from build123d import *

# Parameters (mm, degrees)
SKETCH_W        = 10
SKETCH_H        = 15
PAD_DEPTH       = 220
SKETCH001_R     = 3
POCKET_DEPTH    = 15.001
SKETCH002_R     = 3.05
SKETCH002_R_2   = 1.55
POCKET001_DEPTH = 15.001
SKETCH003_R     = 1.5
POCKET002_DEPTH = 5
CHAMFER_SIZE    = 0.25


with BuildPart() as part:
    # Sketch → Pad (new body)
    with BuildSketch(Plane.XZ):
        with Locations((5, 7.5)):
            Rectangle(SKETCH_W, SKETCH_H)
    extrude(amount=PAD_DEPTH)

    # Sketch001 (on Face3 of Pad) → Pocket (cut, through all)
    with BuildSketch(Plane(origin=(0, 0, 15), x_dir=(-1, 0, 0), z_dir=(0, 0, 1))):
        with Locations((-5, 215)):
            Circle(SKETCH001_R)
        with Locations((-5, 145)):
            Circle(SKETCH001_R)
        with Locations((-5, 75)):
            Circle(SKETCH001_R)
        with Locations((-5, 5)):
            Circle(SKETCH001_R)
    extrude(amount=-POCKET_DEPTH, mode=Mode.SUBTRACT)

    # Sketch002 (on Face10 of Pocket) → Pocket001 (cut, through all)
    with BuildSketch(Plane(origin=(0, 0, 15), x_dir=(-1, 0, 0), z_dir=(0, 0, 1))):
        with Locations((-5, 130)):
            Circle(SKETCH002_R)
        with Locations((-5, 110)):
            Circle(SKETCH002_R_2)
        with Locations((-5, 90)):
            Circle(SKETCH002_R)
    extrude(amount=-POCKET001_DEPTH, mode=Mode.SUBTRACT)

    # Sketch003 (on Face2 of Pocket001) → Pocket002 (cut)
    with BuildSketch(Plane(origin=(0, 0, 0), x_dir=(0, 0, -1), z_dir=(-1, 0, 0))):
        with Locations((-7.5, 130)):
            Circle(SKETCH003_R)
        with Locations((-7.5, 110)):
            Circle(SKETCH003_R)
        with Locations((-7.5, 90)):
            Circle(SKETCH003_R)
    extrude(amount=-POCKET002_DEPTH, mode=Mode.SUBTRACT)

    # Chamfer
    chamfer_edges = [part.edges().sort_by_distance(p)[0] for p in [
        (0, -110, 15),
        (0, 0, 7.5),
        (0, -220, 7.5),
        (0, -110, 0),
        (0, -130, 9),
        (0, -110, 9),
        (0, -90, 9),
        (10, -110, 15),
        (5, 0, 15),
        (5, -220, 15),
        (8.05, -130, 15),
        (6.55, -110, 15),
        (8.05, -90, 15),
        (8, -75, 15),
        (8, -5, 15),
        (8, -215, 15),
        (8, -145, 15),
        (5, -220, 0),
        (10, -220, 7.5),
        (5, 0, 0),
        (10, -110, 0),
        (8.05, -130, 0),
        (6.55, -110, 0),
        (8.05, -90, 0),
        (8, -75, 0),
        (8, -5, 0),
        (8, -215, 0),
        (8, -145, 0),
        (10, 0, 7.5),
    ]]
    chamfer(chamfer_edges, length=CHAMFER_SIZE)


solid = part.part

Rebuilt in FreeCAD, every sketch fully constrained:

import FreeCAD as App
import Part
import Sketcher


def edges_at(feature, points):
    """Names of the edges that pass closest to the given points."""
    edges = feature.Shape.Edges
    near = lambda p: min(range(len(edges)), key=lambda i: edges[i].distToShape(Part.Vertex(*p))[0])
    return sorted({f"Edge{near(p) + 1}" for p in points})

doc = App.newDocument("Part")
body = doc.addObject("PartDesign::Body", "Body")

sketch1 = body.newObject("Sketcher::SketchObject", "Sketch")
sketch1.AttachmentSupport = (doc.getObject("XZ_Plane"), [""])
sketch1.MapMode = "FlatFace"
sketch1.addGeometry([
    Part.LineSegment(App.Vector(0, 15, 0), App.Vector(0, 0, 0)),
    Part.LineSegment(App.Vector(0, 0, 0), App.Vector(10, 0, 0)),
    Part.LineSegment(App.Vector(10, 0, 0), App.Vector(10, 15, 0)),
    Part.LineSegment(App.Vector(10, 15, 0), App.Vector(0, 15, 0)),
], False)
sketch1.addConstraint([
    Sketcher.Constraint("Coincident", 0, 2, 1, 1),
    Sketcher.Constraint("Coincident", 1, 2, 2, 1),
    Sketcher.Constraint("Coincident", 2, 2, 3, 1),
    Sketcher.Constraint("Coincident", 3, 2, 0, 1),
    Sketcher.Constraint("Vertical", 0),
    Sketcher.Constraint("Horizontal", 1),
    Sketcher.Constraint("Vertical", 2),
    Sketcher.Constraint("Horizontal", 3),
    Sketcher.Constraint("Coincident", 0, 2, -1, 1),
    Sketcher.Constraint("DistanceX", 1, 1, 1, 2, 10.0),
    Sketcher.Constraint("DistanceY", 0, 2, 0, 1, 15.0),
])
pad1 = body.newObject("PartDesign::Pad", "Pad")
pad1.Profile = sketch1
pad1.Length = 220

sketch2 = body.newObject("Sketcher::SketchObject", "Sketch001")
sketch2.AttachmentSupport = (doc.getObject("XY_Plane"), [""])
sketch2.MapMode = "FlatFace"
sketch2.AttachmentOffset = App.Placement(App.Vector(0, 0, 15), App.Rotation())
sketch2.addGeometry([
    Part.Circle(App.Vector(5, -215, 0), App.Vector(0, 0, 1), 3),
    Part.Circle(App.Vector(5, -145, 0), App.Vector(0, 0, 1), 3),
    Part.Circle(App.Vector(5, -75, 0), App.Vector(0, 0, 1), 3),
    Part.Circle(App.Vector(5, -5, 0), App.Vector(0, 0, 1), 3),
], False)
sketch2.addConstraint([
    Sketcher.Constraint("Equal", 0, 1),
    Sketcher.Constraint("Equal", 1, 2),
    Sketcher.Constraint("Equal", 2, 3),
    Sketcher.Constraint("Vertical", 0, 3, 1, 3),
    Sketcher.Constraint("Vertical", 1, 3, 2, 3),
    Sketcher.Constraint("Vertical", 2, 3, 3, 3),
    Sketcher.Constraint("Diameter", 0, 6.0),
    Sketcher.Constraint("DistanceX", -1, 1, 0, 3, 5.0),
    Sketcher.Constraint("DistanceY", 0, 3, -1, 1, 215.0),
    Sketcher.Constraint("DistanceY", 1, 3, -1, 1, 145.0),
    Sketcher.Constraint("DistanceY", 2, 3, -1, 1, 75.0),
    Sketcher.Constraint("DistanceY", 3, 3, -1, 1, 5.0),
])
pocket1 = body.newObject("PartDesign::Pocket", "Pocket")
pocket1.Profile = sketch2
pocket1.Type = "ThroughAll"

sketch3 = body.newObject("Sketcher::SketchObject", "Sketch002")
sketch3.AttachmentSupport = (doc.getObject("XY_Plane"), [""])
sketch3.MapMode = "FlatFace"
sketch3.AttachmentOffset = App.Placement(App.Vector(0, 0, 15), App.Rotation())
sketch3.addGeometry([
    Part.Circle(App.Vector(5, -130, 0), App.Vector(0, 0, 1), 3),
    Part.Circle(App.Vector(5, -110, 0), App.Vector(0, 0, 1), 1.6),
    Part.Circle(App.Vector(5, -90, 0), App.Vector(0, 0, 1), 3),
], False)
sketch3.addConstraint([
    Sketcher.Constraint("Equal", 0, 2),
    Sketcher.Constraint("Vertical", 0, 3, 1, 3),
    Sketcher.Constraint("Vertical", 1, 3, 2, 3),
    Sketcher.Constraint("Diameter", 0, 6.1),
    Sketcher.Constraint("Diameter", 1, 3.1),
    Sketcher.Constraint("DistanceX", -1, 1, 0, 3, 5.0),
    Sketcher.Constraint("DistanceY", 0, 3, -1, 1, 130.0),
    Sketcher.Constraint("DistanceY", 1, 3, -1, 1, 110.0),
    Sketcher.Constraint("DistanceY", 2, 3, -1, 1, 90.0),
])
pocket2 = body.newObject("PartDesign::Pocket", "Pocket001")
pocket2.Profile = sketch3
pocket2.Type = "ThroughAll"

sketch4 = body.newObject("Sketcher::SketchObject", "Sketch003")
sketch4.AttachmentSupport = (doc.getObject("YZ_Plane"), [""])
sketch4.MapMode = "FlatFace"
sketch4.addGeometry([
    Part.Circle(App.Vector(-130, 7.5, 0), App.Vector(0, 0, 1), 1.5),
    Part.Circle(App.Vector(-110, 7.5, 0), App.Vector(0, 0, 1), 1.5),
    Part.Circle(App.Vector(-90, 7.5, 0), App.Vector(0, 0, 1), 1.5),
], False)
sketch4.addConstraint([
    Sketcher.Constraint("Equal", 0, 1),
    Sketcher.Constraint("Equal", 1, 2),
    Sketcher.Constraint("Horizontal", 0, 3, 1, 3),
    Sketcher.Constraint("Horizontal", 1, 3, 2, 3),
    Sketcher.Constraint("Diameter", 0, 3.0),
    Sketcher.Constraint("DistanceX", 0, 3, -1, 1, 130.0),
    Sketcher.Constraint("DistanceX", 1, 3, -1, 1, 110.0),
    Sketcher.Constraint("DistanceX", 2, 3, -1, 1, 90.0),
    Sketcher.Constraint("DistanceY", -1, 1, 0, 3, 7.5),
])
pocket3 = body.newObject("PartDesign::Pocket", "Pocket002")
pocket3.Profile = sketch4
pocket3.Length = 5
pocket3.Reversed = True
doc.recompute()

chamfer = body.newObject("PartDesign::Chamfer", "Chamfer")
chamfer.Base = (pocket3, edges_at(pocket3, [
    (0, -110, 15),
    (0, 0, 7.5),
    (0, -220, 7.5),
    (0, -110, 0),
    (0, -130, 9),
    (0, -110, 9),
    (0, -90, 9),
    (10, -110, 15),
    (5, 0, 15),
    (5, -220, 15),
    (8.05, -130, 15),
    (6.55, -110, 15),
    (8.05, -90, 15),
    (8, -75, 15),
    (8, -5, 15),
    (8, -215, 15),
    (8, -145, 15),
    (5, -220, 0),
    (10, -220, 7.5),
    (5, 0, 0),
    (10, -110, 0),
    (8.05, -130, 0),
    (6.55, -110, 0),
    (8.05, -90, 0),
    (8, -75, 0),
    (8, -5, 0),
    (8, -215, 0),
    (8, -145, 0),
    (10, 0, 7.5),
]))
chamfer.Size = 0.25

doc.recompute()
